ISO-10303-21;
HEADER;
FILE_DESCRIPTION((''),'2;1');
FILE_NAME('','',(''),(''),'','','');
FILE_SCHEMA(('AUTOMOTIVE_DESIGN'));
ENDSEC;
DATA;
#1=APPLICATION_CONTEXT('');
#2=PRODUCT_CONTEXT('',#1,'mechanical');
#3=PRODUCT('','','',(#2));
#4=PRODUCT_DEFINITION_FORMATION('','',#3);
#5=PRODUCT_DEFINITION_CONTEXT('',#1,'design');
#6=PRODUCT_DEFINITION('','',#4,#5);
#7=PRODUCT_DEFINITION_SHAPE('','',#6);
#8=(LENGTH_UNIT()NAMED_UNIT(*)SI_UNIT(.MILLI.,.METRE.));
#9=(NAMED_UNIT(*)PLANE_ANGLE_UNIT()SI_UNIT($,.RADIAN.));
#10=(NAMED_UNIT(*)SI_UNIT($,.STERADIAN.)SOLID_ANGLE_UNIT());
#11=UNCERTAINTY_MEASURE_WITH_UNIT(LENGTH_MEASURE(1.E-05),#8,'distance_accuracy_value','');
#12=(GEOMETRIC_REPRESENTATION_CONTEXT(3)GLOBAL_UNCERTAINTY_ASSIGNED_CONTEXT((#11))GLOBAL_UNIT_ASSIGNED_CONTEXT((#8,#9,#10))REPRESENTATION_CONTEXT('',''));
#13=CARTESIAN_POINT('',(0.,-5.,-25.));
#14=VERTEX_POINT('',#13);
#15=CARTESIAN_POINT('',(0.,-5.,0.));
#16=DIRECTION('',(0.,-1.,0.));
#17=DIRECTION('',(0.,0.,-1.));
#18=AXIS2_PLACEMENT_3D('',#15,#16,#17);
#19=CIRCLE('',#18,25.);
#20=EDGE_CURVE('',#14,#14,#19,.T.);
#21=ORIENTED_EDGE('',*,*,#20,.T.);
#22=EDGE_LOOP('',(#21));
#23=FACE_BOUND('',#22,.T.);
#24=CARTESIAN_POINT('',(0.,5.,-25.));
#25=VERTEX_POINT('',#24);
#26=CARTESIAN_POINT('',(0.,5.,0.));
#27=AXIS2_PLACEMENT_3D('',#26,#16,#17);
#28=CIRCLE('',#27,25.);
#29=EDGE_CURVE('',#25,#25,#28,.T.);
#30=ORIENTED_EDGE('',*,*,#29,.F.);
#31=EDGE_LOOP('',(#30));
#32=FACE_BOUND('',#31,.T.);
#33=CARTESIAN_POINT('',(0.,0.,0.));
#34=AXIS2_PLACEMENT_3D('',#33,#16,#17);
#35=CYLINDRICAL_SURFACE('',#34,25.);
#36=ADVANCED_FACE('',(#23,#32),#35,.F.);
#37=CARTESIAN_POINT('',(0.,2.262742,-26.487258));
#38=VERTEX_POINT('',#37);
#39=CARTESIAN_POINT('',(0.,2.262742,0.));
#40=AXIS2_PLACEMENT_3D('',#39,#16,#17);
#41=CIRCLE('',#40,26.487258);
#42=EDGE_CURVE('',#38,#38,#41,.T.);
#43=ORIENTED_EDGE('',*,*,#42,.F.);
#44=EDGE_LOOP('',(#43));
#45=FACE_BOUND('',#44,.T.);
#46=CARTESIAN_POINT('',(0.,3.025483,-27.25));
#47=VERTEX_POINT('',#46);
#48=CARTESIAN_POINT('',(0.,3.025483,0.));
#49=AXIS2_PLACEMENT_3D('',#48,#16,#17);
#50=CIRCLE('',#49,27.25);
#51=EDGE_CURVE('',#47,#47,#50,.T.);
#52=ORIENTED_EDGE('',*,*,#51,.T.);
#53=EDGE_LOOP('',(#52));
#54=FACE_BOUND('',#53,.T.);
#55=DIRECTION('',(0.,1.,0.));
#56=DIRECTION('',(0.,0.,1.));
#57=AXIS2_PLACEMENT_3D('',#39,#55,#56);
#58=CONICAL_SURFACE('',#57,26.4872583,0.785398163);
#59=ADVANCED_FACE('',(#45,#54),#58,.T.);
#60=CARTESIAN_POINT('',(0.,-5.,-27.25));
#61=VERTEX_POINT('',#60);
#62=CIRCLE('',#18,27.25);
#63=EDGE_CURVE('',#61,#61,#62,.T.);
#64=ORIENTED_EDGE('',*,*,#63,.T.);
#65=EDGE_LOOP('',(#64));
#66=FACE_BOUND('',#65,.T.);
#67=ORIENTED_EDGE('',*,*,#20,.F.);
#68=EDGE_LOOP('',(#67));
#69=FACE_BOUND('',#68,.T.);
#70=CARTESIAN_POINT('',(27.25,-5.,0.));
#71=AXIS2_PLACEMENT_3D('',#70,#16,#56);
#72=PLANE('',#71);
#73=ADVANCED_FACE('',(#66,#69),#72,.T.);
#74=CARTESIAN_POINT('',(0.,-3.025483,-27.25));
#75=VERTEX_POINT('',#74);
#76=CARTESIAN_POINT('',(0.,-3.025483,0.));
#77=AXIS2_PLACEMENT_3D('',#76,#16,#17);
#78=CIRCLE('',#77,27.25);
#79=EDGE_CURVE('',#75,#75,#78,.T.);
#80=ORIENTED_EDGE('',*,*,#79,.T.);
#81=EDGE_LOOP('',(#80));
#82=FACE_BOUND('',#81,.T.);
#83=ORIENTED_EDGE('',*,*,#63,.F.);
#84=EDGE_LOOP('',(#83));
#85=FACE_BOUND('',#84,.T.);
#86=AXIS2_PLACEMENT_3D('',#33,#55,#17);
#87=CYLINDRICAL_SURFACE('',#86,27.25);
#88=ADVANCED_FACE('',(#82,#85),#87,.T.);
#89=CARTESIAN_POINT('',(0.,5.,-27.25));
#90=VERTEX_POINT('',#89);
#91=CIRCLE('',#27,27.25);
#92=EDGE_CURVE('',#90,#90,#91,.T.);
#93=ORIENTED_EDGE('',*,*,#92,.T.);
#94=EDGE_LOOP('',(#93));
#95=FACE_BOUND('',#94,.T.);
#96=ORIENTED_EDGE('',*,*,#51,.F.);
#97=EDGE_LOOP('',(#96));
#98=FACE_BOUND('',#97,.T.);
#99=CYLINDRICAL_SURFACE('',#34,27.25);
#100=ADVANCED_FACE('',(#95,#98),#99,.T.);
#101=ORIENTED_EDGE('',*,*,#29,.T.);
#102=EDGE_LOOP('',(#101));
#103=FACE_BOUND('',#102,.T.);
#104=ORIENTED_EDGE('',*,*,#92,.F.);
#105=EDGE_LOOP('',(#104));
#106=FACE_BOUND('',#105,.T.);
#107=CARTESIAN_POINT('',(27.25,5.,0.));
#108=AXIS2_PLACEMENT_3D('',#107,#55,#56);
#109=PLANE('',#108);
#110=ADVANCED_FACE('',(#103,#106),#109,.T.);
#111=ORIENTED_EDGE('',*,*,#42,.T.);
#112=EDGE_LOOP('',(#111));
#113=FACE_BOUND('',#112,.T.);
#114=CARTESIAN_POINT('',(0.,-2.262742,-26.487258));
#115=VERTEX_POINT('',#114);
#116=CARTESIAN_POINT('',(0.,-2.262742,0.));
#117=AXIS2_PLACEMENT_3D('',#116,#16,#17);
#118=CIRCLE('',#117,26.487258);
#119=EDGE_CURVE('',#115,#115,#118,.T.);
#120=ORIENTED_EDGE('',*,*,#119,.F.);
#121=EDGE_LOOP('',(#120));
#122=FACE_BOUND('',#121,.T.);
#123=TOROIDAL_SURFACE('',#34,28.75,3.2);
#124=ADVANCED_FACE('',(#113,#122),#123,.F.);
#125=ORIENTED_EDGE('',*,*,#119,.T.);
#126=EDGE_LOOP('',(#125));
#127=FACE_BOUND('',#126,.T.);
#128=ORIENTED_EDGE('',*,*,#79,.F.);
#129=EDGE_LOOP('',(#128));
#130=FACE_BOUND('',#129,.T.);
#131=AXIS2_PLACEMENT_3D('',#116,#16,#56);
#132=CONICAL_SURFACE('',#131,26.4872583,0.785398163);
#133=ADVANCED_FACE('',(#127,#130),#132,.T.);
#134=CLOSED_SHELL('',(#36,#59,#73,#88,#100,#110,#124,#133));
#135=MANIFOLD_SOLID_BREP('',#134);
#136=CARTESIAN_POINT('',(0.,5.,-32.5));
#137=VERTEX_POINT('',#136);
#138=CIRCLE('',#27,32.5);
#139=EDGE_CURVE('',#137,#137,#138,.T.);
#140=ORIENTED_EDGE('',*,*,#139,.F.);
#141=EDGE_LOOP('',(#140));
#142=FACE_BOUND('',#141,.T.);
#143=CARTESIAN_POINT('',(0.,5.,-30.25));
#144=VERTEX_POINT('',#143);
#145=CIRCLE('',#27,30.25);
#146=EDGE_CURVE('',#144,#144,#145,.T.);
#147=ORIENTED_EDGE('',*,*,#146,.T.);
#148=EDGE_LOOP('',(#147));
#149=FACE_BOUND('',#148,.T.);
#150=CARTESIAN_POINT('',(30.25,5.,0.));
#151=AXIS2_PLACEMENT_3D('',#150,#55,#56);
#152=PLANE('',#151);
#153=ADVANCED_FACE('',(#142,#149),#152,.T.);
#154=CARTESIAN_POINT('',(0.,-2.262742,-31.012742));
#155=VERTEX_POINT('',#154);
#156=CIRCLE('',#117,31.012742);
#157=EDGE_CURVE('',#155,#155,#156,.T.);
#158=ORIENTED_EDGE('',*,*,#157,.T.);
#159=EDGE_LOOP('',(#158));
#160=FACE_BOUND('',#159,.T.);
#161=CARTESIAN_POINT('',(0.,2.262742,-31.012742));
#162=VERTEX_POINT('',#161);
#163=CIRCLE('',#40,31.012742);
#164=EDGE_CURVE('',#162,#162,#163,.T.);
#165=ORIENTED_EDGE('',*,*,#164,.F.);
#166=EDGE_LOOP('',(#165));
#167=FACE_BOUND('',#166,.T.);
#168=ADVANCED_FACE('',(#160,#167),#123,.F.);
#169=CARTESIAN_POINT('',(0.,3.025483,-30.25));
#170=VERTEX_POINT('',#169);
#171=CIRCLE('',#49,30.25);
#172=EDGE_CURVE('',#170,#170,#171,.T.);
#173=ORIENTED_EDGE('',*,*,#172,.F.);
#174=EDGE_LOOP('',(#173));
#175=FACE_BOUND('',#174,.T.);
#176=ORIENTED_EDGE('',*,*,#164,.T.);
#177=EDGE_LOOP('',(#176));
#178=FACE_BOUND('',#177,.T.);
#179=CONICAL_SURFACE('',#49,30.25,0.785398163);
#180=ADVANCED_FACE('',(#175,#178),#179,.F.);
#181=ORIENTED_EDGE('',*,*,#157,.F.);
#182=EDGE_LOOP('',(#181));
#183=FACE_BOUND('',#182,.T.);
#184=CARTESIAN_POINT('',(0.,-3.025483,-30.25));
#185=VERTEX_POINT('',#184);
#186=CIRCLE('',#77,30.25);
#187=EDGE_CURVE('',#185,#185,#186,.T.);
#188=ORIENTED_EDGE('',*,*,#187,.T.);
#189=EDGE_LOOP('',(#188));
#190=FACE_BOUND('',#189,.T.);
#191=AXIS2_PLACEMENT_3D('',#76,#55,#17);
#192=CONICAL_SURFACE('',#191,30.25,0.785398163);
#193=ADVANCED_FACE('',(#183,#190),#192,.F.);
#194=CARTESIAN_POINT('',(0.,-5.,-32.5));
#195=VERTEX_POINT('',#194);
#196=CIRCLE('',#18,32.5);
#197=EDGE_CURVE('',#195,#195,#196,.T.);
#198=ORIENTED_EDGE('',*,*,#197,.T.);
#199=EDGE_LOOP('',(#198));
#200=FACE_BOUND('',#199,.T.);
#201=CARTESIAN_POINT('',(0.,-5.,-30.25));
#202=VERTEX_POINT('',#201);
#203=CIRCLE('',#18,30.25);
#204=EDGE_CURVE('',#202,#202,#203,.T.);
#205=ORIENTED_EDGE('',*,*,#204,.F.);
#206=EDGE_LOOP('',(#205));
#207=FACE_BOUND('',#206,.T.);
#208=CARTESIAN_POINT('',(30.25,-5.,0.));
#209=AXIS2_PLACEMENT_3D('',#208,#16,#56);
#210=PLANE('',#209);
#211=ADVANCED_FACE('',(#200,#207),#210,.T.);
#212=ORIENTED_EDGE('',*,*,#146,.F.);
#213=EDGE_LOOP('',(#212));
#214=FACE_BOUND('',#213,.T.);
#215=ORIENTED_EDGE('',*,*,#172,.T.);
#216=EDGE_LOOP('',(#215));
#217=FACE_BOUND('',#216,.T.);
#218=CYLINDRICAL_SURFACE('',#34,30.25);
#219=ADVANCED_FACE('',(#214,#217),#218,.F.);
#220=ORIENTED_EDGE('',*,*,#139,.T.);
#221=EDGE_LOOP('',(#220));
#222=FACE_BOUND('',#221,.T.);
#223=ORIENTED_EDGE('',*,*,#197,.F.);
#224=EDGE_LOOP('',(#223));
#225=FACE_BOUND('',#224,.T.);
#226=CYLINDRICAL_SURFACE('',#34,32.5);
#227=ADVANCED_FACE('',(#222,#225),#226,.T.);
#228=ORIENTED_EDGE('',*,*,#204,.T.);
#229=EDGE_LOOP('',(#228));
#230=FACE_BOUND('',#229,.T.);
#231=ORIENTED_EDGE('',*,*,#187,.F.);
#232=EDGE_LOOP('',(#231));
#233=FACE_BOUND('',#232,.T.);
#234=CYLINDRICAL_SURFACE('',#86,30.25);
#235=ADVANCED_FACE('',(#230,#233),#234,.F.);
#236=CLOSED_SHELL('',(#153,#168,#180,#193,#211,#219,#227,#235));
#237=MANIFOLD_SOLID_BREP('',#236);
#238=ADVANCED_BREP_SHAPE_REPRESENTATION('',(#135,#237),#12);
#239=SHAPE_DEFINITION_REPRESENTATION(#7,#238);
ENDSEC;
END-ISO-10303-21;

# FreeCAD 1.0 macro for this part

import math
import FreeCAD as App
import Part
import Sketcher
from FreeCAD import Vector

doc = App.newDocument("Part")
body = doc.addObject("PartDesign::Body", "Body")
body.AllowCompound = True

# Sketch on XY plane
sketch1 = body.newObject("Sketcher::SketchObject", "Sketch")
sketch1.AttachmentSupport = (doc.getObject("XY_Plane"), [""])
sketch1.MapMode = "FlatFace"
sketch1.addGeometry(Part.LineSegment(Vector(26.5, 2.3, 0), Vector(27.2, 3, 0)), False)
sketch1.addGeometry(Part.LineSegment(Vector(27.2, 3, 0), Vector(27.2, 5, 0)), False)
sketch1.addGeometry(Part.LineSegment(Vector(27.2, 5, 0), Vector(25, 5, 0)), False)
sketch1.addGeometry(Part.LineSegment(Vector(25, 5, 0), Vector(25, 0, 0)), False)
sketch1.addGeometry(Part.LineSegment(Vector(25, 0, 0), Vector(25.6, 0, 0)), False)
sketch1.addGeometry(Part.ArcOfCircle(Part.Circle(Vector(28.8, 0, 0), Vector(0, 0, 1), 3.2), math.radians(135), math.radians(180)), False)
sketch1.addGeometry(Part.LineSegment(Vector(32.5, 5, 0), Vector(30.2, 5, 0)), False)
sketch1.addGeometry(Part.LineSegment(Vector(30.2, 5, 0), Vector(30.2, 3, 0)), False)
sketch1.addGeometry(Part.LineSegment(Vector(30.2, 3, 0), Vector(31, 2.3, 0)), False)
sketch1.addGeometry(Part.ArcOfCircle(Part.Circle(Vector(28.8, 0, 0), Vector(0, 0, 1), 3.2), math.radians(0), math.radians(45)), False)
sketch1.addGeometry(Part.LineSegment(Vector(31.9, 0, 0), Vector(32.5, 0, 0)), False)
sketch1.addGeometry(Part.LineSegment(Vector(32.5, 0, 0), Vector(32.5, 5, 0)), False)
sketch1.addConstraint(Sketcher.Constraint("Coincident", 0, 2, 1, 1))
sketch1.addConstraint(Sketcher.Constraint("Coincident", 1, 2, 2, 1))
sketch1.addConstraint(Sketcher.Constraint("Coincident", 2, 2, 3, 1))
sketch1.addConstraint(Sketcher.Constraint("Coincident", 3, 2, 4, 1))
sketch1.addConstraint(Sketcher.Constraint("Coincident", 4, 2, 5, 2))
sketch1.addConstraint(Sketcher.Constraint("Tangent", 5, 1, 0, 1))
sketch1.addConstraint(Sketcher.Constraint("Coincident", 6, 2, 7, 1))
sketch1.addConstraint(Sketcher.Constraint("Coincident", 7, 2, 8, 1))
sketch1.addConstraint(Sketcher.Constraint("Tangent", 8, 2, 9, 2))
sketch1.addConstraint(Sketcher.Constraint("Coincident", 9, 1, 10, 1))
sketch1.addConstraint(Sketcher.Constraint("Coincident", 10, 2, 11, 1))
sketch1.addConstraint(Sketcher.Constraint("Coincident", 11, 2, 6, 1))
sketch1.addConstraint(Sketcher.Constraint("Vertical", 1))
sketch1.addConstraint(Sketcher.Constraint("Horizontal", 2))
sketch1.addConstraint(Sketcher.Constraint("Vertical", 3))
sketch1.addConstraint(Sketcher.Constraint("Horizontal", 4))
sketch1.addConstraint(Sketcher.Constraint("Horizontal", 6))
sketch1.addConstraint(Sketcher.Constraint("Vertical", 7))
sketch1.addConstraint(Sketcher.Constraint("Horizontal", 10))
sketch1.addConstraint(Sketcher.Constraint("Vertical", 11))
sketch1.addConstraint(Sketcher.Constraint("Coincident", 9, 3, 5, 3))
sketch1.addConstraint(Sketcher.Constraint("Equal", 5, 9))
sketch1.addConstraint(Sketcher.Constraint("PointOnObject", 5, 3, -1))
sketch1.addConstraint(Sketcher.Constraint("PointOnObject", 3, 2, -1))
sketch1.addConstraint(Sketcher.Constraint("PointOnObject", 9, 1, -1))
sketch1.addConstraint(Sketcher.Constraint("Perpendicular", 0, 8))
sketch1.addConstraint(Sketcher.Constraint("Horizontal", 2, 2, 6, 2))
sketch1.addConstraint(Sketcher.Constraint("Horizontal", 0, 2, 7, 2))
sketch1.addConstraint(Sketcher.Constraint("Horizontal", 5, 1, 8, 2))
sketch1.addConstraint(Sketcher.Constraint("Equal", 2, 6))
sketch1.addConstraint(Sketcher.Constraint("Radius", 5, 3.2))
sketch1.addConstraint(Sketcher.Constraint("DistanceY", 3, 2, 3, 1, 5.0))
sketch1.addConstraint(Sketcher.Constraint("DistanceX", -1, 1, 2, 2, 25.0))
sketch1.addConstraint(Sketcher.Constraint("DistanceX", 1, 2, 6, 2, 3.0))
sketch1.addConstraint(Sketcher.Constraint("DistanceX", 2, 2, 2, 1, 2.25))
revolution = body.newObject("PartDesign::Revolution", "Revolution")
revolution.Profile = sketch1
revolution.ReferenceAxis = (sketch1, ["V_Axis"])
revolution.Angle = 360
body2 = doc.addObject("PartDesign::Body", "Body001")
body2.AllowCompound = True
doc.recompute()

body2.BaseFeature = body
doc.recompute()

mirroring = doc.addObject("Part::Mirroring", "Mirroring")
mirroring.Source = body
mirroring.Base = Vector(0, 0, 0)
mirroring.Normal = Vector(0, 1, 0)
body3 = doc.addObject("PartDesign::Body", "Body002")
body3.BaseFeature = mirroring
boolean = body2.newObject("PartDesign::Boolean", "Boolean")
boolean.Type = "Fuse"
boolean.addObjects([body3])
doc.recompute()
mirroring.Visibility = False

doc.recompute()
